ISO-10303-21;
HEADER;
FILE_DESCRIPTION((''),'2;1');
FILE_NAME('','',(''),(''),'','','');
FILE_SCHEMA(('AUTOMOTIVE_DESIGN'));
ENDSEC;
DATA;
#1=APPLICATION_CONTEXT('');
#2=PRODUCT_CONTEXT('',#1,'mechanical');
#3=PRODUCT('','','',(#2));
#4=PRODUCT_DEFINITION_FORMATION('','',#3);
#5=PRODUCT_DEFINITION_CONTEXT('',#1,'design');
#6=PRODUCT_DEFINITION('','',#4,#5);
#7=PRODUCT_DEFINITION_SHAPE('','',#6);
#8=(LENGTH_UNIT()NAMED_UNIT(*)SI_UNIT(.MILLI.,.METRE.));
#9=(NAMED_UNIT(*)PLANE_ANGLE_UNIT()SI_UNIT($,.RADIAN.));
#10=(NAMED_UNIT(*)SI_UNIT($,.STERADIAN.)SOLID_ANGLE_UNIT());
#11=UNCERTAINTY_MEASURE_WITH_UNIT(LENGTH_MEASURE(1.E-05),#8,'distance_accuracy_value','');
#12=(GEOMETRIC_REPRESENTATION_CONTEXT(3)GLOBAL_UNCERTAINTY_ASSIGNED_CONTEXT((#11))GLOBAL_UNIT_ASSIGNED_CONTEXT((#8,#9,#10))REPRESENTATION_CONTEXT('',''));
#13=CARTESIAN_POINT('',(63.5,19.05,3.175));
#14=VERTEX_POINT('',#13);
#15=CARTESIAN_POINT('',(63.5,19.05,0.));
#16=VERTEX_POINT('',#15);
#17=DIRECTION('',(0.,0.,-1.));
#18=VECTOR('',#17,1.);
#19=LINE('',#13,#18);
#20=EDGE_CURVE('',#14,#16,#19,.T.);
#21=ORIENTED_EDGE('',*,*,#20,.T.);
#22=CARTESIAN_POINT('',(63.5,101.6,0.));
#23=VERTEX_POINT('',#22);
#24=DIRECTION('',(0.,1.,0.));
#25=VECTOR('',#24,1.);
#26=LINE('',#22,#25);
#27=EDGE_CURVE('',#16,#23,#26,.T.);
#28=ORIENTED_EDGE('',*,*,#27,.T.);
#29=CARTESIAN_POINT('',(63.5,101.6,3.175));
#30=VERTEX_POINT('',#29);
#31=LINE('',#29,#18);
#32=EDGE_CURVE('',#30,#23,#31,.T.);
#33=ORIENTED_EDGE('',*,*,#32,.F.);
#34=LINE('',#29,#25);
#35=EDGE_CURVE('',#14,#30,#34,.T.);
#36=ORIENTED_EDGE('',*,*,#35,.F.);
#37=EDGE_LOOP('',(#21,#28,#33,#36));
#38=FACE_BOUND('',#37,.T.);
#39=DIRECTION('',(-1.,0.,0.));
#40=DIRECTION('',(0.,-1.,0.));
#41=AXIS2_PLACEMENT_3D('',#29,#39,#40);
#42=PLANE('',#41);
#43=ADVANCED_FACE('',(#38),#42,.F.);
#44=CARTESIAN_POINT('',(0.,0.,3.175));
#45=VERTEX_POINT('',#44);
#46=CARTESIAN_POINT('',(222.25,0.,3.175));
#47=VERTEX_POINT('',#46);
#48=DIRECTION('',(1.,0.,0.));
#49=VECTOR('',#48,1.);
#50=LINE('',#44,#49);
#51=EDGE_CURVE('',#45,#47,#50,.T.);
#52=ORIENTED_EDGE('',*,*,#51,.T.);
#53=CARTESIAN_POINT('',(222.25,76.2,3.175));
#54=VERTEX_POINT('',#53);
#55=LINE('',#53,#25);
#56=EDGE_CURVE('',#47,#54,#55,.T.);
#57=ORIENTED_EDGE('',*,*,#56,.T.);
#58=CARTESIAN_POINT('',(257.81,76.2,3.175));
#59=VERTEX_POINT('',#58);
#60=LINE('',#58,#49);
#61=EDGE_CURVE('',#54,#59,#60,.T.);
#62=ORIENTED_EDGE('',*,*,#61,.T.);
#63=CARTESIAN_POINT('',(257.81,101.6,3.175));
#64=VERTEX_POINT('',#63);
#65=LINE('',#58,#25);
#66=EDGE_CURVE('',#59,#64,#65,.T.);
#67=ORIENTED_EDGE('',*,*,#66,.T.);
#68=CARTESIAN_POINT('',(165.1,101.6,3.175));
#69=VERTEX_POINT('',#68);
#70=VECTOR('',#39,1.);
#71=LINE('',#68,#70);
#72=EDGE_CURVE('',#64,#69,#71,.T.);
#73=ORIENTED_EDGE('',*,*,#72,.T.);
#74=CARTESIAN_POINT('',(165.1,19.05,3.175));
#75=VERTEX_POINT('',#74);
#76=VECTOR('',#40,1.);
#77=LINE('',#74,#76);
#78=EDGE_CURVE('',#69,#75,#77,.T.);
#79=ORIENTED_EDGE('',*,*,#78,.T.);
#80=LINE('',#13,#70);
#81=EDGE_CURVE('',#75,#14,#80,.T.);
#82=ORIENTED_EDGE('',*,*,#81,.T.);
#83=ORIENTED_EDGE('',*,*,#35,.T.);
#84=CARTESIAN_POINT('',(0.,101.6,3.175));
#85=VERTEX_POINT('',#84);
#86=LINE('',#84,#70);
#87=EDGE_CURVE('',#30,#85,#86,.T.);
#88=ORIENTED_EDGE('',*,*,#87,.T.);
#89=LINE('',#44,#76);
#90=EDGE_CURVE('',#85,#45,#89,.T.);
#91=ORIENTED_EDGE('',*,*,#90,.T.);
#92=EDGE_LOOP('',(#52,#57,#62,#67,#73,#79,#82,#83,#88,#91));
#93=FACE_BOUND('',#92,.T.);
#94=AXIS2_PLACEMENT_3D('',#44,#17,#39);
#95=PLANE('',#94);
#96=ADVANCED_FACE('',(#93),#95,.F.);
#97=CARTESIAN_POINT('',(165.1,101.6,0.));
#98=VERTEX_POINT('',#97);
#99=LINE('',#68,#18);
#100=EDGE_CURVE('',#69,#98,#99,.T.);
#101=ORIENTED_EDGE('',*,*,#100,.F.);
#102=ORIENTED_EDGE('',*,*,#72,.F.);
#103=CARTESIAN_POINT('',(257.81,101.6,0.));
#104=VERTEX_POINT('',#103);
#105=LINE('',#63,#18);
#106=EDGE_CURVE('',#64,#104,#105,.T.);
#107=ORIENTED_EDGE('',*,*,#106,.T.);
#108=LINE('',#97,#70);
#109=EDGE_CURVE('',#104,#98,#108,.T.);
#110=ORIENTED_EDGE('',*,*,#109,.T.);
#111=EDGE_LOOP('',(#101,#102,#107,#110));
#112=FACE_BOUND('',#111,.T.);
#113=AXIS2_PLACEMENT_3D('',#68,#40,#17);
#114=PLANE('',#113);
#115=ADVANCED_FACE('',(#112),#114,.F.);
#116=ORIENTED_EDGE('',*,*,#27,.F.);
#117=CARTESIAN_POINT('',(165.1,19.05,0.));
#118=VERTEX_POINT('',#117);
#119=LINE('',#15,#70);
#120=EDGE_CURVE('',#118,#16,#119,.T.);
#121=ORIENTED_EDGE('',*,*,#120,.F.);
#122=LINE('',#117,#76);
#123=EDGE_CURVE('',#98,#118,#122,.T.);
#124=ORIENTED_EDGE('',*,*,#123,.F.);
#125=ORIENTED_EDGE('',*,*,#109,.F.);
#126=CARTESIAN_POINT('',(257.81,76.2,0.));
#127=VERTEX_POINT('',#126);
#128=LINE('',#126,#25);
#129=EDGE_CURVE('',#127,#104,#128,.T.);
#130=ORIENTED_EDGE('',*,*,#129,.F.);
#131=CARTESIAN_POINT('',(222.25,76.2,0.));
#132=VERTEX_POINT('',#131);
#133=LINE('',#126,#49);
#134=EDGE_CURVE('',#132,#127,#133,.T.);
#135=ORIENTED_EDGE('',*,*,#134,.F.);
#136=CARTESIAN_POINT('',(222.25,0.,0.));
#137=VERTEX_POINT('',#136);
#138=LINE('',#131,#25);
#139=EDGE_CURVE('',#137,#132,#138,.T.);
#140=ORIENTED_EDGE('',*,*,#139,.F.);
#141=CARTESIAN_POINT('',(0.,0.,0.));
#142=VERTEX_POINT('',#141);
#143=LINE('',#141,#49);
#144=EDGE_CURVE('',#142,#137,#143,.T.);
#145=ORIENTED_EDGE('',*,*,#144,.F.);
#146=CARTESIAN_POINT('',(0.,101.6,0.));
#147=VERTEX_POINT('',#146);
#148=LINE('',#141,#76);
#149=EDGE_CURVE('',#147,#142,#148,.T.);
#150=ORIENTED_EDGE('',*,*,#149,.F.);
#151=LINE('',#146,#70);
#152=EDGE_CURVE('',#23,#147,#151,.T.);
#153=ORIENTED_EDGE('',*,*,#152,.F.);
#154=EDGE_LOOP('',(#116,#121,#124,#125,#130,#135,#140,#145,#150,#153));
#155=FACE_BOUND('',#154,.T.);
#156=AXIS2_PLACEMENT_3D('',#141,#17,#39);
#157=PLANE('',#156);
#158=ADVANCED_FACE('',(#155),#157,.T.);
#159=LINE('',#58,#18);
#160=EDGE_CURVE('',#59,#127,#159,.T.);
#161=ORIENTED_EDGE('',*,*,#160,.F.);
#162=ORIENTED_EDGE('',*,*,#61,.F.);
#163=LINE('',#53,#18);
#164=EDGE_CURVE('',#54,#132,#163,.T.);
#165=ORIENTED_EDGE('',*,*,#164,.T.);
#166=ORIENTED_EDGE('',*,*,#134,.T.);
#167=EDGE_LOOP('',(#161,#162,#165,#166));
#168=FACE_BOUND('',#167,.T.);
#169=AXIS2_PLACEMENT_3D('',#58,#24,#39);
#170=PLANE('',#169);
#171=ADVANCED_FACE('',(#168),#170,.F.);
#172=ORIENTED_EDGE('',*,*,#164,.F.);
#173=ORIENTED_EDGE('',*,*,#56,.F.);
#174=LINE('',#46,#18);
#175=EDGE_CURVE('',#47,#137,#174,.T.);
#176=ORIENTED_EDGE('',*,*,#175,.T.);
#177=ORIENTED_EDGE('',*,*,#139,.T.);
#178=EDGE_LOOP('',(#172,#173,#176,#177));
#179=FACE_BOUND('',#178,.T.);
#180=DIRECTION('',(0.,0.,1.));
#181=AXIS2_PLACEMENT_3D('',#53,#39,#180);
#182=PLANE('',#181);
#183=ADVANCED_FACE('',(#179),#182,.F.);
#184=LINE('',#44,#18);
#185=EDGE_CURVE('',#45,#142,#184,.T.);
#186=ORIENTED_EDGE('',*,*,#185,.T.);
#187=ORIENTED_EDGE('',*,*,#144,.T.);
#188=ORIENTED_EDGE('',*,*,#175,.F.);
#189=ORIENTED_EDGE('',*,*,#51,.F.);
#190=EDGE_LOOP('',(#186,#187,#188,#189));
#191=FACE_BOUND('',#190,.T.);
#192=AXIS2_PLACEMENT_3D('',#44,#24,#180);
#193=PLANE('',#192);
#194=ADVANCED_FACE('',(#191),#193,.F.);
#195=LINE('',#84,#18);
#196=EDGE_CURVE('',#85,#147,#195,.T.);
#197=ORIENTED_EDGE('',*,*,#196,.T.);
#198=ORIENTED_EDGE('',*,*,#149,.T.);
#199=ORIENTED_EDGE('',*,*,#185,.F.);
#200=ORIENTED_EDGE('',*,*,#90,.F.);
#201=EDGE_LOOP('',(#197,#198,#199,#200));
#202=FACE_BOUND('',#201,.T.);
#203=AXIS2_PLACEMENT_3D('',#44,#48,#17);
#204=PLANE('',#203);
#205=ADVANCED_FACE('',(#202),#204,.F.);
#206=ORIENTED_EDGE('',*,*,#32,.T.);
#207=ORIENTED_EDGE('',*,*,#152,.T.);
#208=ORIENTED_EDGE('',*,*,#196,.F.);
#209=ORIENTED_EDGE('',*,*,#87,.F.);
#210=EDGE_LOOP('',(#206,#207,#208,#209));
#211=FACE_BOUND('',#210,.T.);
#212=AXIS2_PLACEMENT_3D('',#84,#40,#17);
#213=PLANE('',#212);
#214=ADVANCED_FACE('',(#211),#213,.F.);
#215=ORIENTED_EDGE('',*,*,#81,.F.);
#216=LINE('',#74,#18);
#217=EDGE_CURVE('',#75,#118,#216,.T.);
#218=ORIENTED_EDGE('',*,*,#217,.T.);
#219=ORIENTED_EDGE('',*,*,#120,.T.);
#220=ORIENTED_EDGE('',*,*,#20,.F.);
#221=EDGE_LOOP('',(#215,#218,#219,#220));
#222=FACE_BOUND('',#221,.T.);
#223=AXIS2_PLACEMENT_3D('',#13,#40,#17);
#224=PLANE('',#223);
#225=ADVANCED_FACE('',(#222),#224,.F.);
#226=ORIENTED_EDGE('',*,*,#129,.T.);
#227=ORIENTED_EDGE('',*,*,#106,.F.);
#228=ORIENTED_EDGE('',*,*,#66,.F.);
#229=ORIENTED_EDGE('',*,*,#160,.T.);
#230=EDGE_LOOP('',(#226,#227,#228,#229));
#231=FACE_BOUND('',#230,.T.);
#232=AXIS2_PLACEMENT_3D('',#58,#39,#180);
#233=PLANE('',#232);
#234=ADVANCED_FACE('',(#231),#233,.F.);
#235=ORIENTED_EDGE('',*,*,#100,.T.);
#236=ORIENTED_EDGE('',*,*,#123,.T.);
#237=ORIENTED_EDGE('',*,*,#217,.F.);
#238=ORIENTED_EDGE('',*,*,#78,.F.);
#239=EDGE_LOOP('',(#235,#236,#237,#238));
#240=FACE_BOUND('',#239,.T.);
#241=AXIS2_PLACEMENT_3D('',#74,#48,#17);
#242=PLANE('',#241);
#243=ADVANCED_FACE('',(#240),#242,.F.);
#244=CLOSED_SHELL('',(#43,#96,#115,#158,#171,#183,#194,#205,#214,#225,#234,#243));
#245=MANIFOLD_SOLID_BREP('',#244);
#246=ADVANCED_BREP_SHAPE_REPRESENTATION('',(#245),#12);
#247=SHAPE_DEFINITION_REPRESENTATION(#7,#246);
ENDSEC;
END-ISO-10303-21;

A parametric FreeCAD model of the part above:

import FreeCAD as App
import Part
import Sketcher

V = App.Vector
Q = App.Units.Quantity

doc = App.newDocument("Part")
body = doc.addObject("PartDesign::Body", "Body")

sketch1 = body.newObject("Sketcher::SketchObject", "Sketch")
sketch1.AttachmentSupport = (doc.getObject("XY_Plane"), [""])
sketch1.MapMode = "FlatFace"
sketch1.addGeometry([
    Part.LineSegment(V(222, 76, 0), V(258, 76, 0)),
    Part.LineSegment(V(258, 76, 0), V(258, 102, 0)),
    Part.LineSegment(V(258, 102, 0), V(165, 102, 0)),
    Part.LineSegment(V(165, 102, 0), V(165, 19, 0)),
    Part.LineSegment(V(165, 19, 0), V(64, 19, 0)),
    Part.LineSegment(V(64, 19, 0), V(64, 102, 0)),
    Part.LineSegment(V(64, 102, 0), V(0, 102, 0)),
    Part.LineSegment(V(0, 102, 0), V(0, 0, 0)),
    Part.LineSegment(V(0, 0, 0), V(222, 0, 0)),
    Part.LineSegment(V(222, 0, 0), V(222, 76, 0)),
], False)
sketch1.addConstraint([
    Sketcher.Constraint("Coincident", 0, 2, 1, 1),
    Sketcher.Constraint("Coincident", 1, 2, 2, 1),
    Sketcher.Constraint("Coincident", 2, 2, 3, 1),
    Sketcher.Constraint("Coincident", 3, 2, 4, 1),
    Sketcher.Constraint("Coincident", 4, 2, 5, 1),
    Sketcher.Constraint("Coincident", 5, 2, 6, 1),
    Sketcher.Constraint("Coincident", 6, 2, 7, 1),
    Sketcher.Constraint("Coincident", 7, 2, 8, 1),
    Sketcher.Constraint("Coincident", 8, 2, 9, 1),
    Sketcher.Constraint("Coincident", 9, 2, 0, 1),
    Sketcher.Constraint("Horizontal", 0),
    Sketcher.Constraint("Vertical", 1),
    Sketcher.Constraint("Horizontal", 2),
    Sketcher.Constraint("Vertical", 3),
    Sketcher.Constraint("Horizontal", 4),
    Sketcher.Constraint("Vertical", 5),
    Sketcher.Constraint("Horizontal", 6),
    Sketcher.Constraint("Vertical", 7),
    Sketcher.Constraint("Horizontal", 8),
    Sketcher.Constraint("Vertical", 9),
    Sketcher.Constraint("Coincident", 7, 2, -1, 1),
    Sketcher.Constraint("Horizontal", 2, 2, 5, 2),
    Sketcher.Constraint("Equal", 4, 7),
    Sketcher.Constraint("DistanceX", 4, 2, 4, 1, Q("4 in")),
    Sketcher.Constraint("DistanceY", 1, 1, 1, 2, Q("1 in")),
    Sketcher.Constraint("DistanceX", 0, 1, 0, 2, Q("1.4 in")),
    Sketcher.Constraint("DistanceX", 6, 2, 6, 1, Q("2.5 in")),
    Sketcher.Constraint("DistanceX", 2, 2, 2, 1, Q("3.65 in")),
    Sketcher.Constraint("DistanceY", 3, 2, 3, 1, Q("3.25 in")),
])
pad1 = body.newObject("PartDesign::Pad", "Pad")
pad1.Profile = sketch1
pad1.Length = Q("0.125 in")

doc.recompute()
